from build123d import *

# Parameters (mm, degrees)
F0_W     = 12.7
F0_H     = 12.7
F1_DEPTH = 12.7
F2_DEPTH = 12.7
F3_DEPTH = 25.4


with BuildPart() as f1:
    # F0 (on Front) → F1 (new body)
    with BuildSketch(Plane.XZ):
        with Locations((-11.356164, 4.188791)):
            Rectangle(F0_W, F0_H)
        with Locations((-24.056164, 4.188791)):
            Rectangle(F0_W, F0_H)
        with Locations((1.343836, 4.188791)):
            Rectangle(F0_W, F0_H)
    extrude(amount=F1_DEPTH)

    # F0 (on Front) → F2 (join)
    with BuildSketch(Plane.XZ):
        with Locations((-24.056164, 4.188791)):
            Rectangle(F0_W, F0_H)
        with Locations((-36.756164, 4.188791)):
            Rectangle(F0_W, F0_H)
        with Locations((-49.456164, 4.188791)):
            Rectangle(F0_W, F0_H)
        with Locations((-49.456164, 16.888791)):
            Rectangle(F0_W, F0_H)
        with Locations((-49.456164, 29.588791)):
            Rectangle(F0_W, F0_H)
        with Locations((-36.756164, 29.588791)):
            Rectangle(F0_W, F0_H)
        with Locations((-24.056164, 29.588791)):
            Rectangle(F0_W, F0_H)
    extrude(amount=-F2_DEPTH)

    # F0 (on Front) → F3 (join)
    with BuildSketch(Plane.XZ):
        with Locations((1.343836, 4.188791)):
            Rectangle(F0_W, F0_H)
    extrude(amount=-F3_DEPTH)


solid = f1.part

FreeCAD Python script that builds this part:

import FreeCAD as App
import Part
import Sketcher
Q = App.Units.Quantity


def add_polygon(sketch, points):
    """Adds a closed chain of lines whose ends are joined by coincident constraints."""
    first, n = sketch.GeometryCount, len(points)
    for a, b in zip(points, points[1:] + points[:1]):
        sketch.addGeometry(Part.LineSegment(App.Vector(*a, 0), App.Vector(*b, 0)), False)
    for i in range(n):
        sketch.addConstraint(Sketcher.Constraint("Coincident", first + i, 2, first + (i + 1) % n, 1))

doc = App.newDocument("Part")
body = doc.addObject("PartDesign::Body", "Body")

# Sketch on XZ plane
sketch1 = doc.addObject("Sketcher::SketchObject", "Sketch")
body.addObject(sketch1)
sketch1.AttachmentSupport = (doc.XZ_Plane, [""])
sketch1.MapMode = "FlatFace"
add_polygon(sketch1, [(-30, 11), (-30, -2), (8, -2), (8, 11)])  # lines 0-3
sketch1.addConstraint([
    Sketcher.Constraint("Vertical", 0),
    Sketcher.Constraint("Horizontal", 1),
    Sketcher.Constraint("Vertical", 2),
    Sketcher.Constraint("Horizontal", 3),
    Sketcher.Constraint("DistanceX", 1, 1, 1, 2, Q("1.5 in")),
    Sketcher.Constraint("DistanceY", 0, 2, 0, 1, Q("0.5 in")),
    Sketcher.Constraint("DistanceY", 0, 2, -1, 1, Q("2.161209 mm")),
    Sketcher.Constraint("DistanceX", 0, 2, -1, 1, Q("30.406164 mm")),
])
pad1 = doc.addObject("PartDesign::Pad", "Pad")
body.addObject(pad1)
pad1.Profile = sketch1
pad1.Length = Q("0.5 in")

# Sketch on XZ plane
sketch2 = doc.addObject("Sketcher::SketchObject", "Sketch001")
body.addObject(sketch2)
sketch2.AttachmentSupport = (doc.XZ_Plane, [""])
sketch2.MapMode = "FlatFace"
add_polygon(sketch2, [(-18, -2), (-18, 11), (-43, 11), (-43, 23), (-18, 23), (-18, 36), (-56, 36), (-56, -2)])  # lines 0-7
sketch2.addConstraint([
    Sketcher.Constraint("Vertical", 0),
    Sketcher.Constraint("Horizontal", 1),
    Sketcher.Constraint("Vertical", 2),
    Sketcher.Constraint("Horizontal", 3),
    Sketcher.Constraint("Vertical", 4),
    Sketcher.Constraint("Horizontal", 5),
    Sketcher.Constraint("Vertical", 6),
    Sketcher.Constraint("Horizontal", 7),
    Sketcher.Constraint("Vertical", 0, 2, 3, 2),
    Sketcher.Constraint("Equal", 0, 2),
    Sketcher.Constraint("Equal", 2, 4),
    Sketcher.Constraint("Equal", 7, 6),
    Sketcher.Constraint("DistanceX", 1, 2, 1, 1, Q("1 in")),
    Sketcher.Constraint("DistanceX", 5, 2, 5, 1, Q("1.5 in")),
    Sketcher.Constraint("DistanceY", -1, 1, 0, 2, Q("10.538791 mm")),
    Sketcher.Constraint("DistanceX", 0, 2, -1, 1, Q("17.706164 mm")),
])
pad2 = doc.addObject("PartDesign::Pad", "Pad001")
body.addObject(pad2)
pad2.Profile = sketch2
pad2.Length = Q("0.5 in")
pad2.Reversed = True

# Sketch on XZ plane
sketch3 = doc.addObject("Sketcher::SketchObject", "Sketch002")
body.addObject(sketch3)
sketch3.AttachmentSupport = (doc.XZ_Plane, [""])
sketch3.MapMode = "FlatFace"
add_polygon(sketch3, [(-5, 11), (-5, -2), (8, -2), (8, 11)])  # lines 0-3
sketch3.addConstraint([
    Sketcher.Constraint("Vertical", 0),
    Sketcher.Constraint("Horizontal", 1),
    Sketcher.Constraint("Vertical", 2),
    Sketcher.Constraint("Horizontal", 3),
    Sketcher.Constraint("Equal", 3, 0),
    Sketcher.Constraint("DistanceX", 1, 1, 1, 2, Q("0.5 in")),
    Sketcher.Constraint("DistanceY", 0, 2, -1, 1, Q("2.161209 mm")),
    Sketcher.Constraint("DistanceX", 0, 2, -1, 1, Q("5.006164 mm")),
])
pad3 = doc.addObject("PartDesign::Pad", "Pad002")
body.addObject(pad3)
pad3.Profile = sketch3
pad3.Length = Q("1 in")
pad3.Reversed = True

doc.recompute()
